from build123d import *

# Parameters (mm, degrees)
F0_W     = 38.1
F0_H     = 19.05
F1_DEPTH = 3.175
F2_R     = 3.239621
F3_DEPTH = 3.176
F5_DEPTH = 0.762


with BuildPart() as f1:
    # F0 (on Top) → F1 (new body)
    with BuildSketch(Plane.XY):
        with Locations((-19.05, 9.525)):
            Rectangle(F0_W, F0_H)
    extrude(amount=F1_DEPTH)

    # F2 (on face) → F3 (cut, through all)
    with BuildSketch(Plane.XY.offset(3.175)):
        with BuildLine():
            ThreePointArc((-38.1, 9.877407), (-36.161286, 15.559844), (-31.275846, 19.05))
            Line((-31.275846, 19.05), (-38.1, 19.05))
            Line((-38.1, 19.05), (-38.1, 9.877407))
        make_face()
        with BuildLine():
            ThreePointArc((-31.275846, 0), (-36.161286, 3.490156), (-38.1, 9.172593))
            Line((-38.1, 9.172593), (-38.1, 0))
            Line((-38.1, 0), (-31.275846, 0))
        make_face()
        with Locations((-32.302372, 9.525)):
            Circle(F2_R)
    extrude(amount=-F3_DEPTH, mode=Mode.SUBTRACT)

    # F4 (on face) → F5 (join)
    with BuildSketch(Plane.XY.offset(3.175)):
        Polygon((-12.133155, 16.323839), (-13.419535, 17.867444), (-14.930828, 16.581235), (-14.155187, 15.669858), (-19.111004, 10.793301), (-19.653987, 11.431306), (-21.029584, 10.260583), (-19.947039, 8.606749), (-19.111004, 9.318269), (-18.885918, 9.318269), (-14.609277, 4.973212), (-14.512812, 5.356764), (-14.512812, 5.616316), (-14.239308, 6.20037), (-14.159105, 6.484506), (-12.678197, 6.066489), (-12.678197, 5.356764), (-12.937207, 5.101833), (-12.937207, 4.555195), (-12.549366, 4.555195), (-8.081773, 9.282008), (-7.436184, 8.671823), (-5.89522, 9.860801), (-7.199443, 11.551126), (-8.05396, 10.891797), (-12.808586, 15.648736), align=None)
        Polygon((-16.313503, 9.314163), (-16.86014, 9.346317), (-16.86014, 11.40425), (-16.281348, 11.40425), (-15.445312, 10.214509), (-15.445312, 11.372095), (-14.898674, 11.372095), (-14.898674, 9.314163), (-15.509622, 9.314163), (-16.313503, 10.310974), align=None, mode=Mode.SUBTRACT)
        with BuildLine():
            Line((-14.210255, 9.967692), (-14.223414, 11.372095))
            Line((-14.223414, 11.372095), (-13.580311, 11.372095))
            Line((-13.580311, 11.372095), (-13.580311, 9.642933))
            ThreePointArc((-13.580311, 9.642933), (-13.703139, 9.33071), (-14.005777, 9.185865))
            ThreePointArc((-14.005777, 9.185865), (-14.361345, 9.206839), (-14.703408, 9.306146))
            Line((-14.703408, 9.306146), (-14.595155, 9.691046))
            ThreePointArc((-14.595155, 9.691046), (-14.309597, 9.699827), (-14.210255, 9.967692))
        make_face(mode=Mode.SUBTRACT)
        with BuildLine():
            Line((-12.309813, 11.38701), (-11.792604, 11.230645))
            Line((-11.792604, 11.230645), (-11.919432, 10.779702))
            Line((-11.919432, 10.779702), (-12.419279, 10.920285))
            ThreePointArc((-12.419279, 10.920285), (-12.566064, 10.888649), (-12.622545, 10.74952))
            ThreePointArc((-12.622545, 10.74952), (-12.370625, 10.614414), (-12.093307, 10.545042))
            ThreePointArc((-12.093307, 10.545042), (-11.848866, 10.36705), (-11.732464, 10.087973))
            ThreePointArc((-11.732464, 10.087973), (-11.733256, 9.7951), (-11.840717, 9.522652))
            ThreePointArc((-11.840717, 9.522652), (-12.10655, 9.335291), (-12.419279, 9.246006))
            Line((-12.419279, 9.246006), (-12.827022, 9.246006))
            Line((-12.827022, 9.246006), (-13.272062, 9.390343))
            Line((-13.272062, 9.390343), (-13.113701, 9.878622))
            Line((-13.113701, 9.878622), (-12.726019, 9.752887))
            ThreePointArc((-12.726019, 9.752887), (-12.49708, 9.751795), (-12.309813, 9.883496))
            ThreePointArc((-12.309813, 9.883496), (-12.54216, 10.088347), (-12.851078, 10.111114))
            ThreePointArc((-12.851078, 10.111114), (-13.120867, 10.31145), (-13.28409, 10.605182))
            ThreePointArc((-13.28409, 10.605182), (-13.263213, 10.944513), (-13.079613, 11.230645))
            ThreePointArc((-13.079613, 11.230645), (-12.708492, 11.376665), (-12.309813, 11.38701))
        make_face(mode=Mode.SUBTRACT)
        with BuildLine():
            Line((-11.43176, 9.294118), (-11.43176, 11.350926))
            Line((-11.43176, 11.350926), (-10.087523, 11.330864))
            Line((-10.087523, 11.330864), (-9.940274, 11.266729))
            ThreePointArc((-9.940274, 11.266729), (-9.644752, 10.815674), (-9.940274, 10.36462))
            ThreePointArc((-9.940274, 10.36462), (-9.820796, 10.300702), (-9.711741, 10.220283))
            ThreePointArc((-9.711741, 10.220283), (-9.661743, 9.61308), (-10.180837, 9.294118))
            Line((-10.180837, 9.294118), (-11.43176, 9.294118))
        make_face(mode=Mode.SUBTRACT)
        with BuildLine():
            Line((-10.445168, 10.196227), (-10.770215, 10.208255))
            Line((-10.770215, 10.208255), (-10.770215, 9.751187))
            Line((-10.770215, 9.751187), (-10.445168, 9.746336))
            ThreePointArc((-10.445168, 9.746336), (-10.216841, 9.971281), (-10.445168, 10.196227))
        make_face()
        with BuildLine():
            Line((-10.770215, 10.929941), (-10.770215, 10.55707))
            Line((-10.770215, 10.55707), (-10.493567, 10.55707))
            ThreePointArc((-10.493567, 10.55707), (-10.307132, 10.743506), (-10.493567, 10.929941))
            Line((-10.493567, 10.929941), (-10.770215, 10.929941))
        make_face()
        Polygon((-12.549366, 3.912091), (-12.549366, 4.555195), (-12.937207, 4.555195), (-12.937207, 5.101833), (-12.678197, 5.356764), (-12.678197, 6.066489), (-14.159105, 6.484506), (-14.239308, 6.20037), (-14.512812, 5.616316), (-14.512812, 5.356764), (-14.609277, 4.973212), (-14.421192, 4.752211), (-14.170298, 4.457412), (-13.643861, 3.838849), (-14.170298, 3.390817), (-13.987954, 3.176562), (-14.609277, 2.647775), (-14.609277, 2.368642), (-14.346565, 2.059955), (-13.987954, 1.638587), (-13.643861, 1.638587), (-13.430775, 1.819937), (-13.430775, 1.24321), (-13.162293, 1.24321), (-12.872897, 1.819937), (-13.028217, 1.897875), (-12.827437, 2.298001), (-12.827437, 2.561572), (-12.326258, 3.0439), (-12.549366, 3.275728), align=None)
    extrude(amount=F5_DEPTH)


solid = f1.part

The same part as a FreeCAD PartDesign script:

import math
import FreeCAD as App
import Part
import Sketcher
Q = App.Units.Quantity

doc = App.newDocument("Part")
body = doc.addObject("PartDesign::Body", "Body")

# Sketch on XY plane
sketch1 = body.newObject("Sketcher::SketchObject", "Sketch")
sketch1.AttachmentSupport = (doc.getObject("XY_Plane"), [""])
sketch1.MapMode = "FlatFace"
sketch1.addGeometry([
    Part.LineSegment(App.Vector(-38, 19, 0), App.Vector(-38, 0, 0)),
    Part.LineSegment(App.Vector(-38, 0, 0), App.Vector(0, 0, 0)),
    Part.LineSegment(App.Vector(0, 0, 0), App.Vector(0, 19, 0)),
    Part.LineSegment(App.Vector(0, 19, 0), App.Vector(-38, 19, 0)),
], False)
sketch1.addConstraint([
    Sketcher.Constraint("Coincident", 0, 2, 1, 1),
    Sketcher.Constraint("Coincident", 1, 2, 2, 1),
    Sketcher.Constraint("Coincident", 2, 2, 3, 1),
    Sketcher.Constraint("Coincident", 3, 2, 0, 1),
    Sketcher.Constraint("Vertical", 0),
    Sketcher.Constraint("Horizontal", 1),
    Sketcher.Constraint("Vertical", 2),
    Sketcher.Constraint("Horizontal", 3),
    Sketcher.Constraint("Coincident", 1, 2, -1, 1),
    Sketcher.Constraint("DistanceX", 1, 1, 1, 2, Q("1.5 in")),
    Sketcher.Constraint("DistanceY", 0, 2, 0, 1, Q("0.75 in")),
])
pad1 = body.newObject("PartDesign::Pad", "Pad")
pad1.Profile = sketch1
pad1.Length = Q("0.125 in")

# Sketch on XY plane
sketch2 = body.newObject("Sketcher::SketchObject", "Sketch001")
sketch2.AttachmentSupport = (doc.getObject("XY_Plane"), [""])
sketch2.MapMode = "FlatFace"
sketch2.AttachmentOffset = App.Placement(App.Vector(0, 0, 0.125 * 25.4), App.Rotation())
sketch2.addGeometry([
    Part.ArcOfCircle(Part.Circle(App.Vector(-28.3, 9.7, 0), App.Vector(0, 0, 1), 9.8), math.radians(108), math.radians(179)),  # 0
    Part.LineSegment(App.Vector(-31.3, 19.1, 0), App.Vector(-38.1, 19.1, 0)),  # 1
    Part.LineSegment(App.Vector(-38.1, 19.1, 0), App.Vector(-38.1, 9.9, 0)),  # 2
    Part.ArcOfCircle(Part.Circle(App.Vector(-28.3, 9.3, 0), App.Vector(0, 0, 1), 9.8), math.radians(-179), math.radians(-108)),  # 3
    Part.LineSegment(App.Vector(-38.1, 9.2, 0), App.Vector(-38.1, 0, 0)),  # 4
    Part.LineSegment(App.Vector(-38.1, 0, 0), App.Vector(-31.3, 0, 0)),  # 5
    Part.Circle(App.Vector(-32.3, 9.5, 0), App.Vector(0, 0, 1), 3.2),  # 6
], False)
sketch2.addConstraint([
    Sketcher.Constraint("Coincident", 0, 1, 1, 1),
    Sketcher.Constraint("Coincident", 1, 2, 2, 1),
    Sketcher.Constraint("Coincident", 2, 2, 0, 2),
    Sketcher.Constraint("Coincident", 3, 1, 4, 1),
    Sketcher.Constraint("Coincident", 4, 2, 5, 1),
    Sketcher.Constraint("Coincident", 5, 2, 3, 2),
    Sketcher.Constraint("Horizontal", 1),
    Sketcher.Constraint("Vertical", 2),
    Sketcher.Constraint("Vertical", 4),
    Sketcher.Constraint("Horizontal", 5),
    Sketcher.Constraint("Equal", 0, 3),
    Sketcher.Constraint("PointOnObject", 4, 2, -1),
    Sketcher.Constraint("Vertical", 0, 3, 3, 3),
    Sketcher.Constraint("Vertical", 2, 2, 3, 1),
    Sketcher.Constraint("Vertical", 0, 1, 5, 2),
    Sketcher.Constraint("DistanceX", 1, 2, -1, 1, Q("1.5 in")),
    Sketcher.Constraint("DistanceY", -1, 1, 0, 1, Q("0.75 in")),
    Sketcher.Constraint("DistanceY", -1, 1, 6, 3, Q("0.375 in")),
    Sketcher.Constraint("Radius", 0, Q("9.81511 mm")),
    Sketcher.Constraint("Diameter", 6, Q("6.479242 mm")),
    Sketcher.Constraint("DistanceX", 6, 3, 0, 3, Q("4.0159 mm")),
    Sketcher.Constraint("DistanceX", 1, 2, 1, 1, Q("6.824154 mm")),
    Sketcher.Constraint("DistanceY", 2, 2, 2, 1, Q("9.172593 mm")),
])
pocket1 = body.newObject("PartDesign::Pocket", "Pocket")
pocket1.Profile = sketch2
pocket1.Type = "ThroughAll"

# Sketch on XY plane
sketch3 = body.newObject("Sketcher::SketchObject", "Sketch002")
sketch3.AttachmentSupport = (doc.getObject("XY_Plane"), [""])
sketch3.MapMode = "FlatFace"
sketch3.AttachmentOffset = App.Placement(App.Vector(0, 0, 0.125 * 25.4), App.Rotation())
sketch3.addGeometry([
    Part.LineSegment(App.Vector(-12.133155, 16.323839, 0), App.Vector(-13.419535, 17.867444, 0)),  # 0
    Part.LineSegment(App.Vector(-13.419535, 17.867444, 0), App.Vector(-14.930828, 16.581235, 0)),  # 1
    Part.LineSegment(App.Vector(-14.930828, 16.581235, 0), App.Vector(-14.155187, 15.669858, 0)),  # 2
    Part.LineSegment(App.Vector(-14.155187, 15.669858, 0), App.Vector(-19.111004, 10.793301, 0)),  # 3
    Part.LineSegment(App.Vector(-19.111004, 10.793301, 0), App.Vector(-19.653987, 11.431306, 0)),  # 4
    Part.LineSegment(App.Vector(-19.653987, 11.431306, 0), App.Vector(-21.029584, 10.260583, 0)),  # 5
    Part.LineSegment(App.Vector(-21.029584, 10.260583, 0), App.Vector(-19.947039, 8.606749, 0)),  # 6
    Part.LineSegment(App.Vector(-19.947039, 8.606749, 0), App.Vector(-19.111004, 9.318269, 0)),  # 7
    Part.LineSegment(App.Vector(-19.111004, 9.318269, 0), App.Vector(-18.885918, 9.318269, 0)),  # 8
    Part.LineSegment(App.Vector(-18.885918, 9.318269, 0), App.Vector(-14.609277, 4.973212, 0)),  # 9
    Part.LineSegment(App.Vector(-14.609277, 4.973212, 0), App.Vector(-14.421192, 4.752211, 0)),  # 10
    Part.LineSegment(App.Vector(-14.421192, 4.752211, 0), App.Vector(-14.170298, 4.457412, 0)),  # 11
    Part.LineSegment(App.Vector(-14.170298, 4.457412, 0), App.Vector(-13.643861, 3.838849, 0)),  # 12
    Part.LineSegment(App.Vector(-13.643861, 3.838849, 0), App.Vector(-14.170298, 3.390817, 0)),  # 13
    Part.LineSegment(App.Vector(-14.170298, 3.390817, 0), App.Vector(-13.987954, 3.176562, 0)),  # 14
    Part.LineSegment(App.Vector(-13.987954, 3.176562, 0), App.Vector(-14.609277, 2.647775, 0)),  # 15
    Part.LineSegment(App.Vector(-14.609277, 2.647775, 0), App.Vector(-14.609277, 2.368642, 0)),  # 16
    Part.LineSegment(App.Vector(-14.609277, 2.368642, 0), App.Vector(-14.346565, 2.059955, 0)),  # 17
    Part.LineSegment(App.Vector(-14.346565, 2.059955, 0), App.Vector(-13.987954, 1.638587, 0)),  # 18
    Part.LineSegment(App.Vector(-13.987954, 1.638587, 0), App.Vector(-13.643861, 1.638587, 0)),  # 19
    Part.LineSegment(App.Vector(-13.643861, 1.638587, 0), App.Vector(-13.430775, 1.819937, 0)),  # 20
    Part.LineSegment(App.Vector(-13.430775, 1.819937, 0), App.Vector(-13.430775, 1.24321, 0)),  # 21
    Part.LineSegment(App.Vector(-13.430775, 1.24321, 0), App.Vector(-13.162293, 1.24321, 0)),  # 22
    Part.LineSegment(App.Vector(-13.162293, 1.24321, 0), App.Vector(-12.872897, 1.819937, 0)),  # 23
    Part.LineSegment(App.Vector(-12.872897, 1.819937, 0), App.Vector(-13.028217, 1.897875, 0)),  # 24
    Part.LineSegment(App.Vector(-13.028217, 1.897875, 0), App.Vector(-12.827437, 2.298001, 0)),  # 25
    Part.LineSegment(App.Vector(-12.827437, 2.298001, 0), App.Vector(-12.827437, 2.561572, 0)),  # 26
    Part.LineSegment(App.Vector(-12.827437, 2.561572, 0), App.Vector(-12.326258, 3.0439, 0)),  # 27
    Part.LineSegment(App.Vector(-12.326258, 3.0439, 0), App.Vector(-12.549366, 3.275728, 0)),  # 28
    Part.LineSegment(App.Vector(-12.549366, 3.275728, 0), App.Vector(-12.549366, 4.555195, 0)),  # 29
    Part.LineSegment(App.Vector(-12.549366, 4.555195, 0), App.Vector(-8.081773, 9.282008, 0)),  # 30
    Part.LineSegment(App.Vector(-8.081773, 9.282008, 0), App.Vector(-7.436184, 8.671823, 0)),  # 31
    Part.LineSegment(App.Vector(-7.436184, 8.671823, 0), App.Vector(-5.89522, 9.860801, 0)),  # 32
    Part.LineSegment(App.Vector(-5.89522, 9.860801, 0), App.Vector(-7.199443, 11.551126, 0)),  # 33
    Part.LineSegment(App.Vector(-7.199443, 11.551126, 0), App.Vector(-8.05396, 10.891797, 0)),  # 34
    Part.LineSegment(App.Vector(-8.05396, 10.891797, 0), App.Vector(-12.808586, 15.648736, 0)),  # 35
    Part.LineSegment(App.Vector(-12.808586, 15.648736, 0), App.Vector(-12.133155, 16.323839, 0)),  # 36
    Part.ArcOfCircle(Part.Circle(App.Vector(-14.458899, 9.907552, 0), App.Vector(0, 0, 1), 0.255813), math.radians(-122.183985), math.radians(13.597196)),  # 37
    Part.LineSegment(App.Vector(-14.210255, 9.967692, 0), App.Vector(-14.223414, 11.372095, 0)),  # 38
    Part.LineSegment(App.Vector(-14.223414, 11.372095, 0), App.Vector(-13.580311, 11.372095, 0)),  # 39
    Part.LineSegment(App.Vector(-13.580311, 11.372095, 0), App.Vector(-13.580311, 9.642933, 0)),  # 40
    Part.ArcOfCircle(Part.Circle(App.Vector(-14.038552, 9.642933, 0), App.Vector(0, 0, 1), 0.458241), math.radians(-85.898468), math.radians(0.000039)),  # 41
    Part.ArcOfCircle(Part.Circle(App.Vector(-14.090164, 10.779694, 0), App.Vector(0, 0, 1), 1.596061), math.radians(-112.595535), math.radians(-86.969246)),  # 42
    Part.LineSegment(App.Vector(-14.703408, 9.306146, 0), App.Vector(-14.595155, 9.691046, 0)),  # 43
    Part.LineSegment(App.Vector(-16.313503, 10.310974, 0), App.Vector(-16.313503, 9.314163, 0)),  # 44
    Part.LineSegment(App.Vector(-16.313503, 9.314163, 0), App.Vector(-16.86014, 9.346317, 0)),  # 45
    Part.LineSegment(App.Vector(-16.86014, 9.346317, 0), App.Vector(-16.86014, 11.40425, 0)),  # 46
    Part.LineSegment(App.Vector(-16.86014, 11.40425, 0), App.Vector(-16.281348, 11.40425, 0)),  # 47
    Part.LineSegment(App.Vector(-16.281348, 11.40425, 0), App.Vector(-15.445312, 10.214509, 0)),  # 48
    Part.LineSegment(App.Vector(-15.445312, 10.214509, 0), App.Vector(-15.445312, 11.372095, 0)),  # 49
    Part.LineSegment(App.Vector(-15.445312, 11.372095, 0), App.Vector(-14.898674, 11.372095, 0)),  # 50
    Part.LineSegment(App.Vector(-14.898674, 11.372095, 0), App.Vector(-14.898674, 9.314163, 0)),  # 51
    Part.LineSegment(App.Vector(-14.898674, 9.314163, 0), App.Vector(-15.509622, 9.314163, 0)),  # 52
    Part.LineSegment(App.Vector(-15.509622, 9.314163, 0), App.Vector(-16.313503, 10.310974, 0)),  # 53
    Part.ArcOfCircle(Part.Circle(App.Vector(-12.479804, 10.250812, 0), App.Vector(0, 0, 1), 1.148844), math.radians(81.490852), math.radians(121.473042)),  # 54
    Part.LineSegment(App.Vector(-12.309813, 11.38701, 0), App.Vector(-11.792604, 11.230645, 0)),  # 55
    Part.LineSegment(App.Vector(-11.792604, 11.230645, 0), App.Vector(-11.919432, 10.779702, 0)),  # 56
    Part.LineSegment(App.Vector(-11.919432, 10.779702, 0), App.Vector(-12.419279, 10.920285, 0)),  # 57
    Part.ArcOfCircle(Part.Circle(App.Vector(-12.46276, 10.765682, 0), App.Vector(0, 0, 1), 0.160601), math.radians(74.291764), math.radians(185.775881)),  # 58
    Part.ArcOfCircle(Part.Circle(App.Vector(-11.952703, 11.696094, 0), App.Vector(0, 0, 1), 1.159608), math.radians(-125.285071), math.radians(-96.964307)),  # 59
    Part.ArcOfCircle(Part.Circle(App.Vector(-12.28878, 10.01975, 0), App.Vector(0, 0, 1), 0.560483), math.radians(6.991515), math.radians(69.588666)),  # 60
    Part.ArcOfCircle(Part.Circle(App.Vector(-12.508942, 9.943635, 0), App.Vector(0, 0, 1), 0.78978), math.radians(-32.211011), math.radians(10.530392)),  # 61
    Part.ArcOfCircle(Part.Circle(App.Vector(-12.526266, 10.213062, 0), App.Vector(0, 0, 1), 0.972956), math.radians(-83.686938), math.radians(-45.202411)),  # 62
    Part.LineSegment(App.Vector(-12.419279, 9.246006, 0), App.Vector(-12.827022, 9.246006, 0)),  # 63
    Part.LineSegment(App.Vector(-12.827022, 9.246006, 0), App.Vector(-13.272062, 9.390343, 0)),  # 64
    Part.LineSegment(App.Vector(-13.272062, 9.390343, 0), App.Vector(-13.113701, 9.878622, 0)),  # 65
    Part.LineSegment(App.Vector(-13.113701, 9.878622, 0), App.Vector(-12.726019, 9.752887, 0)),  # 66
    Part.ArcOfCircle(Part.Circle(App.Vector(-12.609838, 10.111116, 0), App.Vector(0, 0, 1), 0.376598), math.radians(-107.968912), math.radians(-37.186482)),  # 67
    Part.ArcOfCircle(Part.Circle(App.Vector(-12.730458, 9.640583, 0), App.Vector(0, 0, 1), 0.485746), math.radians(30.005505), math.radians(104.378097)),  # 68
    Part.ArcOfCircle(Part.Circle(App.Vector(-12.521566, 10.83669, 0), App.Vector(0, 0, 1), 0.796893), math.radians(-163.111311), math.radians(-114.424622)),  # 69
    Part.ArcOfCircle(Part.Circle(App.Vector(-12.621506, 10.734725, 0), App.Vector(0, 0, 1), 0.675128), math.radians(132.730229), math.radians(191.062458)),  # 70
    Part.LineSegment(App.Vector(-10.180837, 9.294118, 0), App.Vector(-11.43176, 9.294118, 0)),  # 71
    Part.LineSegment(App.Vector(-11.43176, 9.294118, 0), App.Vector(-11.43176, 11.350926, 0)),  # 72
    Part.LineSegment(App.Vector(-11.43176, 11.350926, 0), App.Vector(-10.087523, 11.330864, 0)),  # 73
    Part.LineSegment(App.Vector(-10.087523, 11.330864, 0), App.Vector(-9.940274, 11.266729, 0)),  # 74
    Part.ArcOfCircle(Part.Circle(App.Vector(-10.136735, 10.815675, 0), App.Vector(0, 0, 1), 0.491983), math.radians(-66.46405), math.radians(66.46405)),  # 75
    Part.ArcOfCircle(Part.Circle(App.Vector(-10.323138, 9.50533, 0), App.Vector(0, 0, 1), 0.940726), math.radians(49.464362), math.radians(65.984217)),  # 76
    Part.ArcOfCircle(Part.Circle(App.Vector(-10.180836, 9.875997, 0), App.Vector(0, 0, 1), 0.581879), math.radians(-90.00007), math.radians(36.276289)),  # 77
    Part.LineSegment(App.Vector(-10.445168, 10.196227, 0), App.Vector(-10.770215, 10.208255, 0)),  # 78
    Part.LineSegment(App.Vector(-10.770215, 10.208255, 0), App.Vector(-10.770215, 9.751187, 0)),  # 79
    Part.LineSegment(App.Vector(-10.770215, 9.751187, 0), App.Vector(-10.445168, 9.746336, 0)),  # 80
    Part.ArcOfCircle(Part.Circle(App.Vector(-10.441812, 9.971281, 0), App.Vector(0, 0, 1), 0.224971), math.radians(-90.854859), math.radians(90.854859)),  # 81
    Part.LineSegment(App.Vector(-10.770215, 10.929941, 0), App.Vector(-10.770215, 10.55707, 0)),  # 82
    Part.LineSegment(App.Vector(-10.770215, 10.55707, 0), App.Vector(-10.493567, 10.55707, 0)),  # 83
    Part.ArcOfCircle(Part.Circle(App.Vector(-10.493567, 10.743505, 0), App.Vector(0, 0, 1), 0.186436), math.radians(-89.999846), math.radians(89.999846)),  # 84
    Part.LineSegment(App.Vector(-10.493567, 10.929941, 0), App.Vector(-10.770215, 10.929941, 0)),  # 85
], False)
sketch3.addConstraint([
    Sketcher.Constraint("Coincident", 0, 2, 1, 1),
    Sketcher.Constraint("Coincident", 1, 2, 2, 1),
    Sketcher.Constraint("Coincident", 2, 2, 3, 1),
    Sketcher.Constraint("Coincident", 3, 2, 4, 1),
    Sketcher.Constraint("Coincident", 4, 2, 5, 1),
    Sketcher.Constraint("Coincident", 5, 2, 6, 1),
    Sketcher.Constraint("Coincident", 6, 2, 7, 1),
    Sketcher.Constraint("Coincident", 7, 2, 8, 1),
    Sketcher.Constraint("Coincident", 8, 2, 9, 1),
    Sketcher.Constraint("Coincident", 9, 2, 10, 1),
    Sketcher.Constraint("Coincident", 10, 2, 11, 1),
    Sketcher.Constraint("Coincident", 11, 2, 12, 1),
    Sketcher.Constraint("Coincident", 12, 2, 13, 1),
    Sketcher.Constraint("Coincident", 13, 2, 14, 1),
    Sketcher.Constraint("Coincident", 14, 2, 15, 1),
    Sketcher.Constraint("Coincident", 15, 2, 16, 1),
    Sketcher.Constraint("Coincident", 16, 2, 17, 1),
    Sketcher.Constraint("Coincident", 17, 2, 18, 1),
    Sketcher.Constraint("Coincident", 18, 2, 19, 1),
    Sketcher.Constraint("Coincident", 19, 2, 20, 1),
    Sketcher.Constraint("Coincident", 20, 2, 21, 1),
    Sketcher.Constraint("Coincident", 21, 2, 22, 1),
    Sketcher.Constraint("Coincident", 22, 2, 23, 1),
    Sketcher.Constraint("Coincident", 23, 2, 24, 1),
    Sketcher.Constraint("Coincident", 24, 2, 25, 1),
    Sketcher.Constraint("Coincident", 25, 2, 26, 1),
    Sketcher.Constraint("Coincident", 26, 2, 27, 1),
    Sketcher.Constraint("Coincident", 27, 2, 28, 1),
    Sketcher.Constraint("Coincident", 28, 2, 29, 1),
    Sketcher.Constraint("Coincident", 29, 2, 30, 1),
    Sketcher.Constraint("Coincident", 30, 2, 31, 1),
    Sketcher.Constraint("Coincident", 31, 2, 32, 1),
    Sketcher.Constraint("Coincident", 32, 2, 33, 1),
    Sketcher.Constraint("Coincident", 33, 2, 34, 1),
    Sketcher.Constraint("Coincident", 34, 2, 35, 1),
    Sketcher.Constraint("Coincident", 35, 2, 36, 1),
    Sketcher.Constraint("Coincident", 36, 2, 0, 1),
    Sketcher.Constraint("Coincident", 37, 2, 38, 1),
    Sketcher.Constraint("Coincident", 38, 2, 39, 1),
    Sketcher.Constraint("Coincident", 39, 2, 40, 1),
    Sketcher.Constraint("Coincident", 40, 2, 41, 2),
    Sketcher.Constraint("Coincident", 41, 1, 42, 2),
    Sketcher.Constraint("Coincident", 42, 1, 43, 1),
    Sketcher.Constraint("Coincident", 43, 2, 37, 1),
    Sketcher.Constraint("Coincident", 44, 2, 45, 1),
    Sketcher.Constraint("Coincident", 45, 2, 46, 1),
    Sketcher.Constraint("Coincident", 46, 2, 47, 1),
    Sketcher.Constraint("Coincident", 47, 2, 48, 1),
    Sketcher.Constraint("Coincident", 48, 2, 49, 1),
    Sketcher.Constraint("Coincident", 49, 2, 50, 1),
    Sketcher.Constraint("Coincident", 50, 2, 51, 1),
    Sketcher.Constraint("Coincident", 51, 2, 52, 1),
    Sketcher.Constraint("Coincident", 52, 2, 53, 1),
    Sketcher.Constraint("Coincident", 53, 2, 44, 1),
    Sketcher.Constraint("Coincident", 54, 1, 55, 1),
    Sketcher.Constraint("Coincident", 55, 2, 56, 1),
    Sketcher.Constraint("Coincident", 56, 2, 57, 1),
    Sketcher.Constraint("Coincident", 57, 2, 58, 1),
    Sketcher.Constraint("Coincident", 58, 2, 59, 1),
    Sketcher.Constraint("Coincident", 59, 2, 60, 2),
    Sketcher.Constraint("Coincident", 60, 1, 61, 2),
    Sketcher.Constraint("Coincident", 61, 1, 62, 2),
    Sketcher.Constraint("Coincident", 62, 1, 63, 1),
    Sketcher.Constraint("Coincident", 63, 2, 64, 1),
    Sketcher.Constraint("Coincident", 64, 2, 65, 1),
    Sketcher.Constraint("Coincident", 65, 2, 66, 1),
    Sketcher.Constraint("Coincident", 66, 2, 67, 1),
    Sketcher.Constraint("Coincident", 67, 2, 68, 1),
    Sketcher.Constraint("Coincident", 68, 2, 69, 2),
    Sketcher.Constraint("Coincident", 69, 1, 70, 2),
    Sketcher.Constraint("Coincident", 70, 1, 54, 2),
    Sketcher.Constraint("Coincident", 71, 2, 72, 1),
    Sketcher.Constraint("Coincident", 72, 2, 73, 1),
    Sketcher.Constraint("Coincident", 73, 2, 74, 1),
    Sketcher.Constraint("Coincident", 74, 2, 75, 2),
    Sketcher.Constraint("Coincident", 75, 1, 76, 2),
    Sketcher.Constraint("Coincident", 76, 1, 77, 2),
    Sketcher.Constraint("Coincident", 77, 1, 71, 1),
    Sketcher.Constraint("Coincident", 78, 2, 79, 1),
    Sketcher.Constraint("Coincident", 79, 2, 80, 1),
    Sketcher.Constraint("Coincident", 80, 2, 81, 1),
    Sketcher.Constraint("Coincident", 81, 2, 78, 1),
    Sketcher.Constraint("Coincident", 82, 2, 83, 1),
    Sketcher.Constraint("Coincident", 83, 2, 84, 1),
    Sketcher.Constraint("Coincident", 84, 2, 85, 1),
    Sketcher.Constraint("Coincident", 85, 2, 82, 1),
    Sketcher.Constraint("Horizontal", 8),
    Sketcher.Constraint("Vertical", 16),
    Sketcher.Constraint("Horizontal", 19),
    Sketcher.Constraint("Vertical", 21),
    Sketcher.Constraint("Horizontal", 22),
    Sketcher.Constraint("Vertical", 26),
    Sketcher.Constraint("Vertical", 29),
    Sketcher.Constraint("Horizontal", 39),
    Sketcher.Constraint("Vertical", 40),
    Sketcher.Constraint("Vertical", 44),
    Sketcher.Constraint("Vertical", 46),
    Sketcher.Constraint("Horizontal", 47),
    Sketcher.Constraint("Vertical", 49),
    Sketcher.Constraint("Horizontal", 50),
    Sketcher.Constraint("Vertical", 51),
    Sketcher.Constraint("Horizontal", 52),
    Sketcher.Constraint("Horizontal", 63),
    Sketcher.Constraint("Horizontal", 71),
    Sketcher.Constraint("Vertical", 72),
    Sketcher.Constraint("Vertical", 79),
    Sketcher.Constraint("Vertical", 82),
    Sketcher.Constraint("Horizontal", 83),
    Sketcher.Constraint("Horizontal", 85),
    Sketcher.Constraint("Radius", 58, Q("0.160601 mm")),
    Sketcher.Constraint("Radius", 41, Q("0.458241 mm")),
    Sketcher.Constraint("Radius", 42, Q("1.596061 mm")),
    Sketcher.Constraint("Radius", 61, Q("0.78978 mm")),
    Sketcher.Constraint("Radius", 70, Q("0.675128 mm")),
    Sketcher.Constraint("Radius", 77, Q("0.581879 mm")),
    Sketcher.Constraint("Radius", 81, Q("0.224971 mm")),
    Sketcher.Constraint("DistanceY", -1, 1, 78, 2, Q("0.4018998 in")),
    Sketcher.Constraint("Radius", 37, Q("0.255813 mm")),
    Sketcher.Constraint("Radius", 54, Q("1.148844 mm")),
    Sketcher.Constraint("Radius", 59, Q("1.159608 mm")),
    Sketcher.Constraint("Radius", 60, Q("0.560483 mm")),
    Sketcher.Constraint("Radius", 62, Q("0.972956 mm")),
    Sketcher.Constraint("Radius", 67, Q("0.376598 mm")),
    Sketcher.Constraint("Radius", 68, Q("0.485746 mm")),
    Sketcher.Constraint("Radius", 69, Q("0.796893 mm")),
    Sketcher.Constraint("Radius", 75, Q("0.491983 mm")),
    Sketcher.Constraint("Radius", 76, Q("0.940726 mm")),
    Sketcher.Constraint("Radius", 84, Q("0.186436 mm")),
    Sketcher.Constraint("DistanceX", 47, 1, 47, 2, Q("0.578792 mm")),
    Sketcher.Constraint("DistanceX", 52, 2, 52, 1, Q("0.610948 mm")),
    Sketcher.Constraint("DistanceY", 26, 1, 26, 2, Q("0.263571 mm")),
    Sketcher.Constraint("DistanceY", 44, 2, 44, 1, Q("0.996811 mm")),
    Sketcher.Constraint("DistanceY", 51, 2, 51, 1, Q("2.057932 mm")),
    Sketcher.Constraint("DistanceY", 72, 1, 72, 2, Q("2.056808 mm")),
    Sketcher.Constraint("DistanceX", 37, 3, -1, 1, Q("14.458899 mm")),
    Sketcher.Constraint("DistanceY", -1, 1, 3, 2, Q("10.793301 mm")),
    Sketcher.Constraint("DistanceX", 11, 2, -1, 1, Q("14.170298 mm")),
    Sketcher.Constraint("DistanceX", 13, 2, -1, 1, Q("14.170298 mm")),
    Sketcher.Constraint("DistanceY", -1, 1, 25, 2, Q("2.298001 mm")),
    Sketcher.Constraint("DistanceY", -1, 1, 27, 2, Q("3.0439 mm")),
    Sketcher.Constraint("DistanceY", -1, 1, 32, 2, Q("9.860801 mm")),
    Sketcher.Constraint("DistanceX", 65, 2, -1, 1, Q("13.113701 mm")),
    Sketcher.Constraint("Distance", 0, Q("2.009351 mm")),
    Sketcher.Constraint("Distance", 5, Q("1.806339 mm")),
    Sketcher.Constraint("Distance", 6, Q("1.976631 mm")),
    Sketcher.Constraint("Distance", 11, Q("0.38711 mm")),
    Sketcher.Constraint("Distance", 13, Q("0.69128 mm")),
    Sketcher.Constraint("Distance", 15, Q("0.815879 mm")),
    Sketcher.Constraint("Distance", 18, Q("0.553311 mm")),
    Sketcher.Constraint("Distance", 20, Q("0.27981 mm")),
    Sketcher.Constraint("Distance", 30, Q("6.50401 mm")),
    Sketcher.Constraint("Distance", 31, Q("0.888319 mm")),
    Sketcher.Constraint("Distance", 32, Q("1.94634 mm")),
    Sketcher.Constraint("Distance", 34, Q("1.079312 mm")),
    Sketcher.Constraint("Distance", 36, Q("0.954972 mm")),
    Sketcher.Constraint("Distance", 45, Q("0.547582 mm")),
    Sketcher.Constraint("Distance", 48, Q("1.454111 mm")),
    Sketcher.Constraint("Distance", 53, Q("1.280569 mm")),
    Sketcher.Constraint("Distance", 55, Q("0.540329 mm")),
    Sketcher.Constraint("Distance", 56, Q("0.468439 mm")),
    Sketcher.Constraint("Distance", 57, Q("0.51924 mm")),
    Sketcher.Constraint("Distance", 64, Q("0.467861 mm")),
    Sketcher.Constraint("Distance", 66, Q("0.407562 mm")),
    Sketcher.Constraint("Distance", 74, Q("0.16061 mm")),
    Sketcher.Constraint("Distance", 78, Q("0.325269 mm")),
    Sketcher.Constraint("DistanceX", 8, 1, 8, 2, Q("0.225086 mm")),
    Sketcher.Constraint("DistanceX", 19, 1, 19, 2, Q("0.344093 mm")),
    Sketcher.Constraint("DistanceX", 22, 1, 22, 2, Q("0.268482 mm")),
    Sketcher.Constraint("DistanceX", 39, 1, 39, 2, Q("0.643103 mm")),
    Sketcher.Constraint("DistanceX", 50, 1, 50, 2, Q("0.546638 mm")),
    Sketcher.Constraint("DistanceX", 63, 2, 63, 1, Q("0.407743 mm")),
    Sketcher.Constraint("DistanceX", 71, 2, 71, 1, Q("1.250923 mm")),
    Sketcher.Constraint("DistanceX", 83, 1, 83, 2, Q("0.276648 mm")),
    Sketcher.Constraint("DistanceX", 85, 2, 85, 1, Q("0.276648 mm")),
    Sketcher.Constraint("DistanceY", 16, 2, 16, 1, Q("0.279133 mm")),
    Sketcher.Constraint("DistanceY", 21, 2, 21, 1, Q("0.576727 mm")),
    Sketcher.Constraint("DistanceY", 29, 1, 29, 2, Q("1.279467 mm")),
    Sketcher.Constraint("DistanceY", 40, 2, 40, 1, Q("1.729162 mm")),
    Sketcher.Constraint("DistanceY", 46, 1, 46, 2, Q("2.057933 mm")),
    Sketcher.Constraint("DistanceY", 49, 1, 49, 2, Q("1.157586 mm")),
    Sketcher.Constraint("DistanceY", 79, 2, 79, 1, Q("0.457068 mm")),
    Sketcher.Constraint("DistanceY", -1, 1, 37, 3, Q("9.907552 mm")),
    Sketcher.Constraint("DistanceY", -1, 1, 54, 3, Q("10.250812 mm")),
    Sketcher.Constraint("DistanceX", 58, 3, -1, 1, Q("12.46276 mm")),
    Sketcher.Constraint("DistanceX", 60, 3, -1, 1, Q("12.28878 mm")),
    Sketcher.Constraint("DistanceY", -1, 1, 60, 3, Q("10.01975 mm")),
    Sketcher.Constraint("DistanceX", 67, 3, -1, 1, Q("12.609838 mm")),
    Sketcher.Constraint("DistanceY", -1, 1, 69, 3, Q("10.83669 mm")),
    Sketcher.Constraint("DistanceX", 76, 3, -1, 1, Q("10.323138 mm")),
    Sketcher.Constraint("DistanceY", -1, 1, 76, 3, Q("9.50533 mm")),
    Sketcher.Constraint("DistanceX", 81, 3, -1, 1, Q("10.441812 mm")),
    Sketcher.Constraint("DistanceY", -1, 1, 81, 3, Q("9.971281 mm")),
    Sketcher.Constraint("DistanceX", 6, 2, -1, 1, Q("19.947039 mm")),
    Sketcher.Constraint("DistanceY", -1, 1, 6, 2, Q("8.606749 mm")),
    Sketcher.Constraint("DistanceY", -1, 1, 7, 2, Q("9.318269 mm")),
    Sketcher.Constraint("DistanceX", 8, 2, -1, 1, Q("18.885918 mm")),
    Sketcher.Constraint("DistanceY", -1, 1, 10, 2, Q("4.752211 mm")),
    Sketcher.Constraint("DistanceY", -1, 1, 11, 2, Q("4.457412 mm")),
    Sketcher.Constraint("DistanceX", 12, 2, -1, 1, Q("13.643861 mm")),
    Sketcher.Constraint("DistanceY", -1, 1, 12, 2, Q("3.838849 mm")),
    Sketcher.Constraint("DistanceY", -1, 1, 16, 2, Q("2.368642 mm")),
    Sketcher.Constraint("DistanceX", 19, 2, -1, 1, Q("13.643861 mm")),
    Sketcher.Constraint("DistanceY", -1, 1, 21, 2, Q("1.24321 mm")),
    Sketcher.Constraint("DistanceY", -1, 1, 28, 2, Q("3.275728 mm")),
    Sketcher.Constraint("DistanceX", 32, 2, -1, 1, Q("5.89522 mm")),
    Sketcher.Constraint("DistanceX", 34, 2, -1, 1, Q("8.05396 mm")),
    Sketcher.Constraint("DistanceY", -1, 1, 36, 2, Q("16.323839 mm")),
    Sketcher.Constraint("DistanceX", 39, 2, -1, 1, Q("13.580311 mm")),
    Sketcher.Constraint("DistanceX", 42, 1, -1, 1, Q("14.703408 mm")),
    Sketcher.Constraint("DistanceX", 45, 2, -1, 1, Q("16.86014 mm")),
    Sketcher.Constraint("DistanceY", -1, 1, 46, 2, Q("11.40425 mm")),
    Sketcher.Constraint("DistanceY", -1, 1, 48, 2, Q("10.214509 mm")),
    Sketcher.Constraint("DistanceY", -1, 1, 54, 1, Q("11.38701 mm")),
    Sketcher.Constraint("DistanceX", 57, 2, -1, 1, Q("12.419279 mm")),
    Sketcher.Constraint("DistanceY", -1, 1, 58, 2, Q("10.74952 mm")),
    Sketcher.Constraint("DistanceY", -1, 1, 59, 2, Q("10.545042 mm")),
    Sketcher.Constraint("DistanceY", -1, 1, 61, 1, Q("9.522652 mm")),
    Sketcher.Constraint("DistanceX", 62, 1, -1, 1, Q("12.419279 mm")),
    Sketcher.Constraint("DistanceX", 66, 2, -1, 1, Q("12.726019 mm")),
    Sketcher.Constraint("DistanceX", 69, 1, -1, 1, Q("13.28409 mm")),
    Sketcher.Constraint("DistanceX", 71, 2, -1, 1, Q("11.43176 mm")),
    Sketcher.Constraint("DistanceY", -1, 1, 74, 2, Q("11.266729 mm")),
    Sketcher.Constraint("DistanceY", -1, 1, 75, 1, Q("10.36462 mm")),
    Sketcher.Constraint("DistanceX", 76, 1, -1, 1, Q("9.711741 mm")),
    Sketcher.Constraint("DistanceY", -1, 1, 77, 1, Q("9.294118 mm")),
    Sketcher.Constraint("DistanceX", 80, 2, -1, 1, Q("10.445168 mm")),
    Sketcher.Constraint("DistanceX", 81, 2, -1, 1, Q("10.445168 mm")),
    Sketcher.Constraint("DistanceY", -1, 1, 82, 2, Q("10.55707 mm")),
    Sketcher.Constraint("Distance", 1, Q("1.984525 mm")),
    Sketcher.Constraint("Distance", 2, Q("1.196757 mm")),
    Sketcher.Constraint("Distance", 3, Q("6.952764 mm")),
    Sketcher.Constraint("Distance", 4, Q("0.837783 mm")),
    Sketcher.Constraint("Distance", 9, Q("6.096653 mm")),
    Sketcher.Constraint("Distance", 10, Q("0.290202 mm")),
    Sketcher.Constraint("Distance", 14, Q("0.281344 mm")),
    Sketcher.Constraint("Distance", 17, Q("0.405346 mm")),
    Sketcher.Constraint("Distance", 23, Q("0.645263 mm")),
    Sketcher.Constraint("Distance", 24, Q("0.173778 mm")),
    Sketcher.Constraint("Distance", 25, Q("0.447676 mm")),
    Sketcher.Constraint("Distance", 27, Q("0.695572 mm")),
    Sketcher.Constraint("Distance", 28, Q("0.321747 mm")),
    Sketcher.Constraint("Distance", 33, Q("2.134993 mm")),
    Sketcher.Constraint("Distance", 35, Q("6.725692 mm")),
    Sketcher.Constraint("Distance", 38, Q("1.404465 mm")),
    Sketcher.Constraint("Distance", 43, Q("0.399833 mm")),
    Sketcher.Constraint("Distance", 65, Q("0.513317 mm")),
    Sketcher.Constraint("Distance", 73, Q("1.344387 mm")),
    Sketcher.Constraint("DistanceY", -1, 1, 41, 3, Q("9.642933 mm")),
    Sketcher.Constraint("DistanceX", 42, 3, -1, 1, Q("14.090164 mm")),
    Sketcher.Constraint("DistanceY", -1, 1, 42, 3, Q("10.779694 mm")),
    Sketcher.Constraint("DistanceX", 54, 3, -1, 1, Q("12.479804 mm")),
    Sketcher.Constraint("DistanceY", -1, 1, 58, 3, Q("10.765682 mm")),
    Sketcher.Constraint("DistanceX", 61, 3, -1, 1, Q("12.508942 mm")),
    Sketcher.Constraint("DistanceY", -1, 1, 61, 3, Q("9.943635 mm")),
    Sketcher.Constraint("DistanceX", 62, 3, -1, 1, Q("12.526266 mm")),
    Sketcher.Constraint("DistanceY", -1, 1, 67, 3, Q("10.111116 mm")),
    Sketcher.Constraint("DistanceX", 68, 3, -1, 1, Q("12.730458 mm")),
    Sketcher.Constraint("DistanceY", -1, 1, 68, 3, Q("9.640583 mm")),
    Sketcher.Constraint("DistanceX", 69, 3, -1, 1, Q("12.521566 mm")),
    Sketcher.Constraint("DistanceX", 70, 3, -1, 1, Q("12.621506 mm")),
    Sketcher.Constraint("DistanceX", 75, 3, -1, 1, Q("10.136735 mm")),
    Sketcher.Constraint("DistanceX", 84, 3, -1, 1, Q("10.493567 mm")),
    Sketcher.Constraint("DistanceX", 0, 2, -1, 1, Q("13.419535 mm")),
    Sketcher.Constraint("DistanceY", -1, 1, 0, 2, Q("17.867444 mm")),
    Sketcher.Constraint("DistanceX", 1, 2, -1, 1, Q("14.930828 mm")),
    Sketcher.Constraint("DistanceX", 2, 2, -1, 1, Q("14.155187 mm")),
    Sketcher.Constraint("DistanceX", 4, 2, -1, 1, Q("19.653987 mm")),
    Sketcher.Constraint("DistanceX", 14, 2, -1, 1, Q("13.987954 mm")),
    Sketcher.Constraint("DistanceX", 17, 2, -1, 1, Q("14.346565 mm")),
    Sketcher.Constraint("DistanceX", 23, 2, -1, 1, Q("12.872897 mm")),
    Sketcher.Constraint("DistanceX", 24, 2, -1, 1, Q("13.028217 mm")),
    Sketcher.Constraint("DistanceX", 30, 2, -1, 1, Q("8.081773 mm")),
    Sketcher.Constraint("DistanceX", 33, 2, -1, 1, Q("7.199443 mm")),
    Sketcher.Constraint("DistanceX", 37, 2, -1, 1, Q("14.210255 mm")),
    Sketcher.Constraint("DistanceX", 55, 2, -1, 1, Q("11.792604 mm")),
    Sketcher.Constraint("DistanceX", 82, 2, -1, 1, Q("10.770215 mm")),
])
pad2 = body.newObject("PartDesign::Pad", "Pad001")
pad2.Profile = sketch3
pad2.Length = Q("0.03 in")

doc.recompute()
